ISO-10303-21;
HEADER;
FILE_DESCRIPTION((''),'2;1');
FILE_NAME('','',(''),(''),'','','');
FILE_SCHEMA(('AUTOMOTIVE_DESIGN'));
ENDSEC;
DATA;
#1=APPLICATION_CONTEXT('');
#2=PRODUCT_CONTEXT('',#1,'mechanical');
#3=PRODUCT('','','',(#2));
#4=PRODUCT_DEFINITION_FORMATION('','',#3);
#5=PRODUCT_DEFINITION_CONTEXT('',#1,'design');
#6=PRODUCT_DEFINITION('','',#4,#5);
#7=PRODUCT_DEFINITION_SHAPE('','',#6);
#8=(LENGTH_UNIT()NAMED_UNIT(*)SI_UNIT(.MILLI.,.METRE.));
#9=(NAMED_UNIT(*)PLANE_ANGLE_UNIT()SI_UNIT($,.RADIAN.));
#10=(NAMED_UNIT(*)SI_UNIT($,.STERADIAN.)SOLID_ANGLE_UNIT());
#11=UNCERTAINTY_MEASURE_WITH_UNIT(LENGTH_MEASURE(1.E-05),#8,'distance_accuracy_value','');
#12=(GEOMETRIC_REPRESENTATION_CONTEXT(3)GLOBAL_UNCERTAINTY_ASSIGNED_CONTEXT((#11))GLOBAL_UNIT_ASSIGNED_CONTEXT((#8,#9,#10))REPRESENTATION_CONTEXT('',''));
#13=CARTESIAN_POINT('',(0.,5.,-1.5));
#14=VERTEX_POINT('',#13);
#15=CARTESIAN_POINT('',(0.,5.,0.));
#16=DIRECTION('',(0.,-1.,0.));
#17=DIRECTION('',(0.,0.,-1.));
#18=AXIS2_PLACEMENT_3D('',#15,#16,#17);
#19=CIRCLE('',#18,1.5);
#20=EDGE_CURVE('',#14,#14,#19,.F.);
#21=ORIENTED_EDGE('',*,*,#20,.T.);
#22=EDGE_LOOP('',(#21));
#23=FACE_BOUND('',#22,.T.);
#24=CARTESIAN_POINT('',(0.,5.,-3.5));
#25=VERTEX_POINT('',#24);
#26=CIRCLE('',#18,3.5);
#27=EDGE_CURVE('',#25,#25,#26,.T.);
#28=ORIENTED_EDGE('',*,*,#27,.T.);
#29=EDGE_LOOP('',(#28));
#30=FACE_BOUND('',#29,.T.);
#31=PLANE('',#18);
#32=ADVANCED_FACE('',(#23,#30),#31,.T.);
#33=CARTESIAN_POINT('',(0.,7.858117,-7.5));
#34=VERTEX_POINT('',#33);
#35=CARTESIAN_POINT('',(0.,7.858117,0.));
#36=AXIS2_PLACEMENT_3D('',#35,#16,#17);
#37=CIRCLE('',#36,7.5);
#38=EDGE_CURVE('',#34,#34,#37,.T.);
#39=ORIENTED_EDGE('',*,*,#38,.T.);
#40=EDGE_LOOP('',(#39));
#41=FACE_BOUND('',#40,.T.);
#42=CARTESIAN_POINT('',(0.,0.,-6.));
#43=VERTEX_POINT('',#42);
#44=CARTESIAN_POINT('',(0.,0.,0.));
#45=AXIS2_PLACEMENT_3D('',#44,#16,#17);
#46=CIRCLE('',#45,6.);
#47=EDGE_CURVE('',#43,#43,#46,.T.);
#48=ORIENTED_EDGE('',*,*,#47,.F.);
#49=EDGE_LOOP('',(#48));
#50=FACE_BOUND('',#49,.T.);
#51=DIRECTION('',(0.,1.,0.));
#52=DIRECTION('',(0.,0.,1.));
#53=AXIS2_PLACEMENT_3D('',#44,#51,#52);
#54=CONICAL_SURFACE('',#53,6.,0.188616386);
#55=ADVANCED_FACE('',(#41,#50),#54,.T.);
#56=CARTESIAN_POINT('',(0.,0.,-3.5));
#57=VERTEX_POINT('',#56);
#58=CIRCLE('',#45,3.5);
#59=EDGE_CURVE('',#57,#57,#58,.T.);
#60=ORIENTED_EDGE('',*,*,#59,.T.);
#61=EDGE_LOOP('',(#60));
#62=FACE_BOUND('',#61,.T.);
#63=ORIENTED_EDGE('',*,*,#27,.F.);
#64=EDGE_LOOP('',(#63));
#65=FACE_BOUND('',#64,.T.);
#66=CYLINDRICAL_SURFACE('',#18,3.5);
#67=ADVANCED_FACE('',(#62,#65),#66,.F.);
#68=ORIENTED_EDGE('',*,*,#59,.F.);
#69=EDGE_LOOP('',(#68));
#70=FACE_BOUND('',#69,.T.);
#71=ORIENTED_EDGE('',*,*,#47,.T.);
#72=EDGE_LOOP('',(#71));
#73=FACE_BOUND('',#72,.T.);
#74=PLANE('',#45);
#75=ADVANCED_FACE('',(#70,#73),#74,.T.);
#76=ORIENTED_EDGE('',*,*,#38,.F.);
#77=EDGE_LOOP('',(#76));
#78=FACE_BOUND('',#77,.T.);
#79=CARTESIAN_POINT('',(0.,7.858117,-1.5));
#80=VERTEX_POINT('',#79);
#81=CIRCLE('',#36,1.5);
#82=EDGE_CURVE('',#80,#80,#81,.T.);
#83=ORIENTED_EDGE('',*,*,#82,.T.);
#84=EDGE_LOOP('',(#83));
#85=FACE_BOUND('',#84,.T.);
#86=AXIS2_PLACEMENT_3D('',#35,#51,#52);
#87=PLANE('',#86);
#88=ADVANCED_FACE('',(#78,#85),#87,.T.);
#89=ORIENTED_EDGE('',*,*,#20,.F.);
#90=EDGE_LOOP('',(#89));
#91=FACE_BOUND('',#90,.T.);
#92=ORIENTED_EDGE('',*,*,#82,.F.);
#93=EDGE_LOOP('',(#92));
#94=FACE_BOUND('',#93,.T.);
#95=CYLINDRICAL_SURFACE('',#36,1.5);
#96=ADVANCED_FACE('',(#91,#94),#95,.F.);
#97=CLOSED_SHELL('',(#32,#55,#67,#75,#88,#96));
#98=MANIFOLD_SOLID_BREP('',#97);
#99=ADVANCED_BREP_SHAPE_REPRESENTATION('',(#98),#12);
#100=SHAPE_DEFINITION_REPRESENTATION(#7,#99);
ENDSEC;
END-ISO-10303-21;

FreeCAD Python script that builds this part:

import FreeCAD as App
import Part
import Sketcher
Q = App.Units.Quantity


def add_polygon(sketch, points):
    """Adds a closed chain of lines whose ends are joined by coincident constraints."""
    first, n = sketch.GeometryCount, len(points)
    for a, b in zip(points, points[1:] + points[:1]):
        sketch.addGeometry(Part.LineSegment(App.Vector(*a, 0), App.Vector(*b, 0)), False)
    for i in range(n):
        sketch.addConstraint(Sketcher.Constraint("Coincident", first + i, 2, first + (i + 1) % n, 1))

doc = App.newDocument("Part")
body = doc.addObject("PartDesign::Body", "Body")

# Sketch on XY plane
sketch1 = doc.addObject("Sketcher::SketchObject", "Sketch")
body.addObject(sketch1)
sketch1.AttachmentSupport = (doc.XY_Plane, [""])
sketch1.MapMode = "FlatFace"
add_polygon(sketch1, [(0, 0), (6, 0), (7.5, 7.858117), (0, 7.858117)])  # lines 0-3
sketch1.addConstraint([
    Sketcher.Constraint("Horizontal", 0),
    Sketcher.Constraint("Horizontal", 2),
    Sketcher.Constraint("Vertical", 3),
    Sketcher.Constraint("Coincident", 3, 2, -1, 1),
    Sketcher.Constraint("DistanceX", 0, 1, 0, 2, Q("6 mm")),
    Sketcher.Constraint("Distance", 1, Q("8 mm")),
    Sketcher.Constraint("DistanceX", 2, 2, 2, 1, Q("7.5 mm")),
])
revolution = doc.addObject("PartDesign::Revolution", "Revolution")
body.addObject(revolution)
revolution.Profile = sketch1
revolution.ReferenceAxis = (sketch1, ["V_Axis"])
revolution.Angle = 360

# Sketch on XZ plane
sketch2 = doc.addObject("Sketcher::SketchObject", "Sketch001")
body.addObject(sketch2)
sketch2.AttachmentSupport = (doc.XZ_Plane, [""])
sketch2.MapMode = "FlatFace"
sketch2.addGeometry(Part.Circle(App.Vector(0, 0, 0), App.Vector(0, 0, 1), 1.5), False)
sketch2.addConstraint([
    Sketcher.Constraint("Coincident", 0, 3, -1, 1),
    Sketcher.Constraint("Diameter", 0, Q("3 mm")),
])
pocket1 = doc.addObject("PartDesign::Pocket", "Pocket")
body.addObject(pocket1)
pocket1.Profile = sketch2
pocket1.Type = "ThroughAll"

# Sketch on XZ plane
sketch3 = doc.addObject("Sketcher::SketchObject", "Sketch002")
body.addObject(sketch3)
sketch3.AttachmentSupport = (doc.XZ_Plane, [""])
sketch3.MapMode = "FlatFace"
sketch3.addGeometry(Part.Circle(App.Vector(0, 0, 0), App.Vector(0, 0, 1), 3.5), False)
sketch3.addConstraint([
    Sketcher.Constraint("Coincident", 0, 3, -1, 1),
    Sketcher.Constraint("Diameter", 0, Q("7 mm")),
])
pocket2 = doc.addObject("PartDesign::Pocket", "Pocket001")
body.addObject(pocket2)
pocket2.Profile = sketch3
pocket2.Length = 5

doc.recompute()
